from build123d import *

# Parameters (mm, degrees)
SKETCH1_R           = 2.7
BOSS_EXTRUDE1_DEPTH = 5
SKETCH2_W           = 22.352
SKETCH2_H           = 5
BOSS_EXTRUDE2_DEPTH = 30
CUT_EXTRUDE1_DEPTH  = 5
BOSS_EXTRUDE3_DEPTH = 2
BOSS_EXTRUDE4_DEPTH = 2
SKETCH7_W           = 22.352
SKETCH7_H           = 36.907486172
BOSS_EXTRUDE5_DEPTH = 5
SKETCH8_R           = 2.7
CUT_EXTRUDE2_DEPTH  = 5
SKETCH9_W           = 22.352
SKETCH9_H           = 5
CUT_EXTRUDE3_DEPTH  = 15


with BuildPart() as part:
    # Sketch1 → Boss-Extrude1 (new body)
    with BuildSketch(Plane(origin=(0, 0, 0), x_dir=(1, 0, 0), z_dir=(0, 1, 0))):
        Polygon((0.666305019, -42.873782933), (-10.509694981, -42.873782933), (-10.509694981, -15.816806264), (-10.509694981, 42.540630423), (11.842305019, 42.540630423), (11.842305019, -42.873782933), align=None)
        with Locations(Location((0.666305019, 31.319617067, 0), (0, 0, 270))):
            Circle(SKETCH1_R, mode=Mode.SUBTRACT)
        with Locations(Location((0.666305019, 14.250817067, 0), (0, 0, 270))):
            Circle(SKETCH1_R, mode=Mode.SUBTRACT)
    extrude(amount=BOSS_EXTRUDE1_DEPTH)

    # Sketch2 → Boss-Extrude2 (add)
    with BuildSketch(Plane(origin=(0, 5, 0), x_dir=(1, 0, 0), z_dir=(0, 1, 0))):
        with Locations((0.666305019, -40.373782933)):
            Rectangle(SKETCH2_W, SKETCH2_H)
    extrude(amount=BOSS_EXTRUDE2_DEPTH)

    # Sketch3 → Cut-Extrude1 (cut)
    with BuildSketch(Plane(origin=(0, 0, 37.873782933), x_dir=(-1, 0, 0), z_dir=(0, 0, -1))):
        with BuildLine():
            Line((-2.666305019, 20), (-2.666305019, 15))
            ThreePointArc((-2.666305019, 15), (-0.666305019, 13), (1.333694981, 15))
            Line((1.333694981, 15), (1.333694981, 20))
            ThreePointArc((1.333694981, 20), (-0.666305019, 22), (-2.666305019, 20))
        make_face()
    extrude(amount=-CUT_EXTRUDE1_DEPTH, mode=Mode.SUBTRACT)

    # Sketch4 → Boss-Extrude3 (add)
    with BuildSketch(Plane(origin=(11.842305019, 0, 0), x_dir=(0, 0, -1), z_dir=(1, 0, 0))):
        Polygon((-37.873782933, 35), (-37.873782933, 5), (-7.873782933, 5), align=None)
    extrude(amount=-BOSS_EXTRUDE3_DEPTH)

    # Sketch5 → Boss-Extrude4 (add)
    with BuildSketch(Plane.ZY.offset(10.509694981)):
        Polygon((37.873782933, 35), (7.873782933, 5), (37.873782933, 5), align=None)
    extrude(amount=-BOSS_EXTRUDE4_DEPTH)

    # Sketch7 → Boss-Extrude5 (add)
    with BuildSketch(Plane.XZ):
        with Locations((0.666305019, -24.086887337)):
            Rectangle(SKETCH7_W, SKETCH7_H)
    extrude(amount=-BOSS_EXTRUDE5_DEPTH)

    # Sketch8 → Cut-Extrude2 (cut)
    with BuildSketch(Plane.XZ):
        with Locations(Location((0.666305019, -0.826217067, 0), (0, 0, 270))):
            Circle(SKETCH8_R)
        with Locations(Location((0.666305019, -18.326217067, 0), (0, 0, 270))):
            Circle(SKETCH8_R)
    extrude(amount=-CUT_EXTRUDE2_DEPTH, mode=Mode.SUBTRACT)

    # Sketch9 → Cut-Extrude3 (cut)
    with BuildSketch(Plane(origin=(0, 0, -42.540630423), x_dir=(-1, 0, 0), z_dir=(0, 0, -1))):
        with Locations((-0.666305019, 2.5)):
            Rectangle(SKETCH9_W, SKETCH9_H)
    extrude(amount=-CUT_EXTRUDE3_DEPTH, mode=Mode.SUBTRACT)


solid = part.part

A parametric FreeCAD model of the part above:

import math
import FreeCAD as App
import Part
import Sketcher
from FreeCAD import Vector


def add_polygon(sketch, points):
    """Adds a closed chain of lines whose ends are joined by coincident constraints."""
    first, n = sketch.GeometryCount, len(points)
    for a, b in zip(points, points[1:] + points[:1]):
        sketch.addGeometry(Part.LineSegment(App.Vector(*a, 0), App.Vector(*b, 0)), False)
    for i in range(n):
        sketch.addConstraint(Sketcher.Constraint("Coincident", first + i, 2, first + (i + 1) % n, 1))

doc = App.newDocument("Part")
params = doc.addObject("Spreadsheet::Sheet", "Params")
for row, (alias, value) in enumerate([
    ("sketch1_diameter", "5.4 mm"),
    ("pad1_length", "5 mm"),
    ("sketch2_height", "5 mm"),
    ("pad2_length", "30 mm"),
    ("sketch3_radius", "2 mm"),
    ("sketch3_height", "5 mm"),
    ("pocket1_length", "5 mm"),
    ("sketch4_width", "30 mm"),
    ("pad3_length", "2 mm"),
    ("sketch5_width", "30 mm"),
    ("pad4_length", "2 mm"),
    ("pad5_length", "5 mm"),
    ("sketch7_diameter", "5.4 mm"),
    ("pocket2_length", "5 mm"),
    ("sketch8_height", "5 mm"),
    ("pocket3_length", "15 mm"),
], start=1):
    params.set(f"A{row}", alias)
    params.set(f"B{row}", "=" + value)
    params.setAlias(f"B{row}", alias)

body = doc.addObject("PartDesign::Body", "Body")

# Sketch on XZ plane
sketch1 = body.newObject("Sketcher::SketchObject", "Sketch")
sketch1.AttachmentSupport = (doc.getObject("XZ_Plane"), [""])
sketch1.MapMode = "FlatFace"
add_polygon(sketch1, [(-10.5, 42.9), (11.8, 42.9), (11.8, -42.5), (-10.5, -42.5)])  # lines 0-3
sketch1.addGeometry(Part.Circle(Vector(0.7, -14.3, 0), Vector(0, 0, 1), 2.7), False)  # 4
sketch1.addGeometry(Part.Circle(Vector(0.7, -31.3, 0), Vector(0, 0, 1), 2.7), False)  # 5
sketch1.addConstraint([
    Sketcher.Constraint("Horizontal", 0),
    Sketcher.Constraint("Vertical", 1),
    Sketcher.Constraint("Horizontal", 2),
    Sketcher.Constraint("Vertical", 3),
    Sketcher.Constraint("Equal", 4, 5),
    Sketcher.Constraint("Vertical", 4, 3, 5, 3),
    Sketcher.Constraint("Diameter", 4, 5.4),
    Sketcher.Constraint("DistanceX", 0, 1, 0, 2, 22.352),
    Sketcher.Constraint("DistanceX", 4, 3, 0, 2, 11.176),
    Sketcher.Constraint("DistanceY", 5, 3, 4, 3, 17.0688),
    Sketcher.Constraint("DistanceY", 4, 3, 0, 2, 57.1246),
    Sketcher.Constraint("DistanceY", 1, 2, 1, 1, 85.414413),
    Sketcher.Constraint("DistanceY", 1, 2, -1, 1, 42.54063),
    Sketcher.Constraint("DistanceX", -1, 1, 4, 3, 0.666305),
])
sketch1.setExpression("Constraints[10]", "Params.sketch1_diameter")
pad1 = body.newObject("PartDesign::Pad", "Pad")
pad1.Profile = sketch1
pad1.setExpression("Length", "Params.pad1_length")
pad1.Reversed = True

# Sketch on XZ plane
sketch2 = body.newObject("Sketcher::SketchObject", "Sketch001")
sketch2.AttachmentSupport = (doc.getObject("XZ_Plane"), [""])
sketch2.MapMode = "FlatFace"
sketch2.AttachmentOffset = App.Placement(Vector(0, 0, -5), App.Rotation())
add_polygon(sketch2, [(-11, 38), (-11, 43), (12, 43), (12, 38)])  # lines 0-3
sketch2.addConstraint([
    Sketcher.Constraint("Vertical", 0),
    Sketcher.Constraint("Horizontal", 1),
    Sketcher.Constraint("Vertical", 2),
    Sketcher.Constraint("Horizontal", 3),
    Sketcher.Constraint("DistanceY", 0, 1, 0, 2, 5.0),
    Sketcher.Constraint("DistanceX", 1, 1, 1, 2, 22.352),
    Sketcher.Constraint("DistanceX", 0, 2, -1, 1, 10.509695),
    Sketcher.Constraint("DistanceY", -1, 1, 0, 2, 42.873783),
])
sketch2.setExpression("Constraints[8]", "Params.sketch2_height")
pad2 = body.newObject("PartDesign::Pad", "Pad001")
pad2.Profile = sketch2
pad2.setExpression("Length", "Params.pad2_length")
pad2.Reversed = True

# Sketch on XY plane
sketch3 = body.newObject("Sketcher::SketchObject", "Sketch002")
sketch3.AttachmentSupport = (doc.getObject("XY_Plane"), [""])
sketch3.MapMode = "FlatFace"
sketch3.AttachmentOffset = App.Placement(Vector(0, 0, 37.873783), App.Rotation())
sketch3.addGeometry([
    Part.LineSegment(Vector(2.7, 20, 0), Vector(2.7, 15, 0)),
    Part.ArcOfCircle(Part.Circle(Vector(0.7, 15, 0), Vector(0, 0, 1), 2), math.radians(180), math.radians(360)),
    Part.LineSegment(Vector(-1.3, 15, 0), Vector(-1.3, 20, 0)),
    Part.ArcOfCircle(Part.Circle(Vector(0.7, 20, 0), Vector(0, 0, 1), 2), math.radians(0), math.radians(180)),
], False)
sketch3.addConstraint([
    Sketcher.Constraint("Tangent", 0, 2, 1, 2),
    Sketcher.Constraint("Tangent", 1, 1, 2, 1),
    Sketcher.Constraint("Tangent", 2, 2, 3, 2),
    Sketcher.Constraint("Tangent", 3, 1, 0, 1),
    Sketcher.Constraint("Vertical", 0),
    Sketcher.Constraint("Vertical", 2),
    Sketcher.Constraint("Radius", 1, 2.0),
    Sketcher.Constraint("DistanceY", 0, 2, 0, 1, 5.0),
    Sketcher.Constraint("DistanceY", -1, 1, 1, 3, 15.0),
    Sketcher.Constraint("DistanceX", -1, 1, 1, 3, 0.666305),
])
sketch3.setExpression("Constraints[6]", "Params.sketch3_radius")
sketch3.setExpression("Constraints[7]", "Params.sketch3_height")
pocket1 = body.newObject("PartDesign::Pocket", "Pocket")
pocket1.Profile = sketch3
pocket1.setExpression("Length", "Params.pocket1_length")
pocket1.Reversed = True

# Sketch on YZ plane
sketch4 = body.newObject("Sketcher::SketchObject", "Sketch003")
sketch4.AttachmentSupport = (doc.getObject("YZ_Plane"), [""])
sketch4.MapMode = "FlatFace"
sketch4.AttachmentOffset = App.Placement(Vector(0, 0, 11.842305), App.Rotation())
add_polygon(sketch4, [(35, 38), (5, 38), (5, 8)])  # lines 0-2
sketch4.addConstraint([
    Sketcher.Constraint("Horizontal", 0),
    Sketcher.Constraint("Vertical", 1),
    Sketcher.Constraint("Equal", 0, 1),
    Sketcher.Constraint("DistanceX", 0, 2, 0, 1, 30.0),
    Sketcher.Constraint("DistanceX", -1, 1, 0, 2, 5.0),
    Sketcher.Constraint("DistanceY", -1, 1, 0, 2, 37.873783),
])
sketch4.setExpression("Constraints[6]", "Params.sketch4_width")
pad3 = body.newObject("PartDesign::Pad", "Pad002")
pad3.Profile = sketch4
pad3.setExpression("Length", "Params.pad3_length")
pad3.Reversed = True

# Sketch on YZ plane
sketch5 = body.newObject("Sketcher::SketchObject", "Sketch004")
sketch5.AttachmentSupport = (doc.getObject("YZ_Plane"), [""])
sketch5.MapMode = "FlatFace"
sketch5.AttachmentOffset = App.Placement(Vector(0, 0, -10.509695), App.Rotation())
add_polygon(sketch5, [(35, 38), (5, 8), (5, 38)])  # lines 0-2
sketch5.addConstraint([
    Sketcher.Constraint("Vertical", 1),
    Sketcher.Constraint("Horizontal", 2),
    Sketcher.Constraint("Equal", 2, 1),
    Sketcher.Constraint("DistanceX", 2, 1, 2, 2, 30.0),
    Sketcher.Constraint("DistanceX", -1, 1, 0, 2, 5.0),
    Sketcher.Constraint("DistanceY", -1, 1, 0, 2, 7.873783),
])
sketch5.setExpression("Constraints[6]", "Params.sketch5_width")
pad4 = body.newObject("PartDesign::Pad", "Pad003")
pad4.Profile = sketch5
pad4.setExpression("Length", "Params.pad4_length")

# Sketch on XZ plane
sketch6 = body.newObject("Sketcher::SketchObject", "Sketch005")
sketch6.AttachmentSupport = (doc.getObject("XZ_Plane"), [""])
sketch6.MapMode = "FlatFace"
add_polygon(sketch6, [(-11, -6), (-11, -43), (12, -43), (12, -6)])  # lines 0-3
sketch6.addConstraint([
    Sketcher.Constraint("Vertical", 0),
    Sketcher.Constraint("Horizontal", 1),
    Sketcher.Constraint("Vertical", 2),
    Sketcher.Constraint("Horizontal", 3),
    Sketcher.Constraint("DistanceX", 1, 1, 1, 2, 22.352),
    Sketcher.Constraint("DistanceY", 0, 2, 0, 1, 36.907486),
    Sketcher.Constraint("DistanceY", 0, 2, -1, 1, 42.54063),
    Sketcher.Constraint("DistanceX", 0, 2, -1, 1, 10.509695),
])
pad5 = body.newObject("PartDesign::Pad", "Pad004")
pad5.Profile = sketch6
pad5.setExpression("Length", "Params.pad5_length")
pad5.Reversed = True

# Sketch on XZ plane
sketch7 = body.newObject("Sketcher::SketchObject", "Sketch006")
sketch7.AttachmentSupport = (doc.getObject("XZ_Plane"), [""])
sketch7.MapMode = "FlatFace"
sketch7.addGeometry([
    Part.Circle(Vector(0.7, -0.8, 0), Vector(0, 0, 1), 2.7),
    Part.Circle(Vector(0.7, -18.3, 0), Vector(0, 0, 1), 2.7),
], False)
sketch7.addConstraint([
    Sketcher.Constraint("Equal", 0, 1),
    Sketcher.Constraint("Vertical", 0, 3, 1, 3),
    Sketcher.Constraint("Diameter", 0, 5.4),
    Sketcher.Constraint("DistanceY", 1, 3, 0, 3, 17.5),
    Sketcher.Constraint("DistanceX", -1, 1, 0, 3, 0.666305),
    Sketcher.Constraint("DistanceY", 0, 3, -1, 1, 0.826217),
])
sketch7.setExpression("Constraints[2]", "Params.sketch7_diameter")
pocket2 = body.newObject("PartDesign::Pocket", "Pocket001")
pocket2.Profile = sketch7
pocket2.setExpression("Length", "Params.pocket2_length")

# Sketch on XY plane
sketch8 = body.newObject("Sketcher::SketchObject", "Sketch007")
sketch8.AttachmentSupport = (doc.getObject("XY_Plane"), [""])
sketch8.MapMode = "FlatFace"
sketch8.AttachmentOffset = App.Placement(Vector(0, 0, -42.54063), App.Rotation())
add_polygon(sketch8, [(12, 5), (12, 0), (-11, 0), (-11, 5)])  # lines 0-3
sketch8.addConstraint([
    Sketcher.Constraint("Vertical", 0),
    Sketcher.Constraint("Horizontal", 1),
    Sketcher.Constraint("Vertical", 2),
    Sketcher.Constraint("Horizontal", 3),
    Sketcher.Constraint("PointOnObject", 0, 2, -1),
    Sketcher.Constraint("DistanceY", 0, 2, 0, 1, 5.0),
    Sketcher.Constraint("DistanceX", 1, 2, 1, 1, 22.352),
    Sketcher.Constraint("DistanceX", -1, 1, 0, 2, 11.842305),
])
sketch8.setExpression("Constraints[9]", "Params.sketch8_height")
pocket3 = body.newObject("PartDesign::Pocket", "Pocket002")
pocket3.Profile = sketch8
pocket3.setExpression("Length", "Params.pocket3_length")
pocket3.Reversed = True

doc.recompute()
